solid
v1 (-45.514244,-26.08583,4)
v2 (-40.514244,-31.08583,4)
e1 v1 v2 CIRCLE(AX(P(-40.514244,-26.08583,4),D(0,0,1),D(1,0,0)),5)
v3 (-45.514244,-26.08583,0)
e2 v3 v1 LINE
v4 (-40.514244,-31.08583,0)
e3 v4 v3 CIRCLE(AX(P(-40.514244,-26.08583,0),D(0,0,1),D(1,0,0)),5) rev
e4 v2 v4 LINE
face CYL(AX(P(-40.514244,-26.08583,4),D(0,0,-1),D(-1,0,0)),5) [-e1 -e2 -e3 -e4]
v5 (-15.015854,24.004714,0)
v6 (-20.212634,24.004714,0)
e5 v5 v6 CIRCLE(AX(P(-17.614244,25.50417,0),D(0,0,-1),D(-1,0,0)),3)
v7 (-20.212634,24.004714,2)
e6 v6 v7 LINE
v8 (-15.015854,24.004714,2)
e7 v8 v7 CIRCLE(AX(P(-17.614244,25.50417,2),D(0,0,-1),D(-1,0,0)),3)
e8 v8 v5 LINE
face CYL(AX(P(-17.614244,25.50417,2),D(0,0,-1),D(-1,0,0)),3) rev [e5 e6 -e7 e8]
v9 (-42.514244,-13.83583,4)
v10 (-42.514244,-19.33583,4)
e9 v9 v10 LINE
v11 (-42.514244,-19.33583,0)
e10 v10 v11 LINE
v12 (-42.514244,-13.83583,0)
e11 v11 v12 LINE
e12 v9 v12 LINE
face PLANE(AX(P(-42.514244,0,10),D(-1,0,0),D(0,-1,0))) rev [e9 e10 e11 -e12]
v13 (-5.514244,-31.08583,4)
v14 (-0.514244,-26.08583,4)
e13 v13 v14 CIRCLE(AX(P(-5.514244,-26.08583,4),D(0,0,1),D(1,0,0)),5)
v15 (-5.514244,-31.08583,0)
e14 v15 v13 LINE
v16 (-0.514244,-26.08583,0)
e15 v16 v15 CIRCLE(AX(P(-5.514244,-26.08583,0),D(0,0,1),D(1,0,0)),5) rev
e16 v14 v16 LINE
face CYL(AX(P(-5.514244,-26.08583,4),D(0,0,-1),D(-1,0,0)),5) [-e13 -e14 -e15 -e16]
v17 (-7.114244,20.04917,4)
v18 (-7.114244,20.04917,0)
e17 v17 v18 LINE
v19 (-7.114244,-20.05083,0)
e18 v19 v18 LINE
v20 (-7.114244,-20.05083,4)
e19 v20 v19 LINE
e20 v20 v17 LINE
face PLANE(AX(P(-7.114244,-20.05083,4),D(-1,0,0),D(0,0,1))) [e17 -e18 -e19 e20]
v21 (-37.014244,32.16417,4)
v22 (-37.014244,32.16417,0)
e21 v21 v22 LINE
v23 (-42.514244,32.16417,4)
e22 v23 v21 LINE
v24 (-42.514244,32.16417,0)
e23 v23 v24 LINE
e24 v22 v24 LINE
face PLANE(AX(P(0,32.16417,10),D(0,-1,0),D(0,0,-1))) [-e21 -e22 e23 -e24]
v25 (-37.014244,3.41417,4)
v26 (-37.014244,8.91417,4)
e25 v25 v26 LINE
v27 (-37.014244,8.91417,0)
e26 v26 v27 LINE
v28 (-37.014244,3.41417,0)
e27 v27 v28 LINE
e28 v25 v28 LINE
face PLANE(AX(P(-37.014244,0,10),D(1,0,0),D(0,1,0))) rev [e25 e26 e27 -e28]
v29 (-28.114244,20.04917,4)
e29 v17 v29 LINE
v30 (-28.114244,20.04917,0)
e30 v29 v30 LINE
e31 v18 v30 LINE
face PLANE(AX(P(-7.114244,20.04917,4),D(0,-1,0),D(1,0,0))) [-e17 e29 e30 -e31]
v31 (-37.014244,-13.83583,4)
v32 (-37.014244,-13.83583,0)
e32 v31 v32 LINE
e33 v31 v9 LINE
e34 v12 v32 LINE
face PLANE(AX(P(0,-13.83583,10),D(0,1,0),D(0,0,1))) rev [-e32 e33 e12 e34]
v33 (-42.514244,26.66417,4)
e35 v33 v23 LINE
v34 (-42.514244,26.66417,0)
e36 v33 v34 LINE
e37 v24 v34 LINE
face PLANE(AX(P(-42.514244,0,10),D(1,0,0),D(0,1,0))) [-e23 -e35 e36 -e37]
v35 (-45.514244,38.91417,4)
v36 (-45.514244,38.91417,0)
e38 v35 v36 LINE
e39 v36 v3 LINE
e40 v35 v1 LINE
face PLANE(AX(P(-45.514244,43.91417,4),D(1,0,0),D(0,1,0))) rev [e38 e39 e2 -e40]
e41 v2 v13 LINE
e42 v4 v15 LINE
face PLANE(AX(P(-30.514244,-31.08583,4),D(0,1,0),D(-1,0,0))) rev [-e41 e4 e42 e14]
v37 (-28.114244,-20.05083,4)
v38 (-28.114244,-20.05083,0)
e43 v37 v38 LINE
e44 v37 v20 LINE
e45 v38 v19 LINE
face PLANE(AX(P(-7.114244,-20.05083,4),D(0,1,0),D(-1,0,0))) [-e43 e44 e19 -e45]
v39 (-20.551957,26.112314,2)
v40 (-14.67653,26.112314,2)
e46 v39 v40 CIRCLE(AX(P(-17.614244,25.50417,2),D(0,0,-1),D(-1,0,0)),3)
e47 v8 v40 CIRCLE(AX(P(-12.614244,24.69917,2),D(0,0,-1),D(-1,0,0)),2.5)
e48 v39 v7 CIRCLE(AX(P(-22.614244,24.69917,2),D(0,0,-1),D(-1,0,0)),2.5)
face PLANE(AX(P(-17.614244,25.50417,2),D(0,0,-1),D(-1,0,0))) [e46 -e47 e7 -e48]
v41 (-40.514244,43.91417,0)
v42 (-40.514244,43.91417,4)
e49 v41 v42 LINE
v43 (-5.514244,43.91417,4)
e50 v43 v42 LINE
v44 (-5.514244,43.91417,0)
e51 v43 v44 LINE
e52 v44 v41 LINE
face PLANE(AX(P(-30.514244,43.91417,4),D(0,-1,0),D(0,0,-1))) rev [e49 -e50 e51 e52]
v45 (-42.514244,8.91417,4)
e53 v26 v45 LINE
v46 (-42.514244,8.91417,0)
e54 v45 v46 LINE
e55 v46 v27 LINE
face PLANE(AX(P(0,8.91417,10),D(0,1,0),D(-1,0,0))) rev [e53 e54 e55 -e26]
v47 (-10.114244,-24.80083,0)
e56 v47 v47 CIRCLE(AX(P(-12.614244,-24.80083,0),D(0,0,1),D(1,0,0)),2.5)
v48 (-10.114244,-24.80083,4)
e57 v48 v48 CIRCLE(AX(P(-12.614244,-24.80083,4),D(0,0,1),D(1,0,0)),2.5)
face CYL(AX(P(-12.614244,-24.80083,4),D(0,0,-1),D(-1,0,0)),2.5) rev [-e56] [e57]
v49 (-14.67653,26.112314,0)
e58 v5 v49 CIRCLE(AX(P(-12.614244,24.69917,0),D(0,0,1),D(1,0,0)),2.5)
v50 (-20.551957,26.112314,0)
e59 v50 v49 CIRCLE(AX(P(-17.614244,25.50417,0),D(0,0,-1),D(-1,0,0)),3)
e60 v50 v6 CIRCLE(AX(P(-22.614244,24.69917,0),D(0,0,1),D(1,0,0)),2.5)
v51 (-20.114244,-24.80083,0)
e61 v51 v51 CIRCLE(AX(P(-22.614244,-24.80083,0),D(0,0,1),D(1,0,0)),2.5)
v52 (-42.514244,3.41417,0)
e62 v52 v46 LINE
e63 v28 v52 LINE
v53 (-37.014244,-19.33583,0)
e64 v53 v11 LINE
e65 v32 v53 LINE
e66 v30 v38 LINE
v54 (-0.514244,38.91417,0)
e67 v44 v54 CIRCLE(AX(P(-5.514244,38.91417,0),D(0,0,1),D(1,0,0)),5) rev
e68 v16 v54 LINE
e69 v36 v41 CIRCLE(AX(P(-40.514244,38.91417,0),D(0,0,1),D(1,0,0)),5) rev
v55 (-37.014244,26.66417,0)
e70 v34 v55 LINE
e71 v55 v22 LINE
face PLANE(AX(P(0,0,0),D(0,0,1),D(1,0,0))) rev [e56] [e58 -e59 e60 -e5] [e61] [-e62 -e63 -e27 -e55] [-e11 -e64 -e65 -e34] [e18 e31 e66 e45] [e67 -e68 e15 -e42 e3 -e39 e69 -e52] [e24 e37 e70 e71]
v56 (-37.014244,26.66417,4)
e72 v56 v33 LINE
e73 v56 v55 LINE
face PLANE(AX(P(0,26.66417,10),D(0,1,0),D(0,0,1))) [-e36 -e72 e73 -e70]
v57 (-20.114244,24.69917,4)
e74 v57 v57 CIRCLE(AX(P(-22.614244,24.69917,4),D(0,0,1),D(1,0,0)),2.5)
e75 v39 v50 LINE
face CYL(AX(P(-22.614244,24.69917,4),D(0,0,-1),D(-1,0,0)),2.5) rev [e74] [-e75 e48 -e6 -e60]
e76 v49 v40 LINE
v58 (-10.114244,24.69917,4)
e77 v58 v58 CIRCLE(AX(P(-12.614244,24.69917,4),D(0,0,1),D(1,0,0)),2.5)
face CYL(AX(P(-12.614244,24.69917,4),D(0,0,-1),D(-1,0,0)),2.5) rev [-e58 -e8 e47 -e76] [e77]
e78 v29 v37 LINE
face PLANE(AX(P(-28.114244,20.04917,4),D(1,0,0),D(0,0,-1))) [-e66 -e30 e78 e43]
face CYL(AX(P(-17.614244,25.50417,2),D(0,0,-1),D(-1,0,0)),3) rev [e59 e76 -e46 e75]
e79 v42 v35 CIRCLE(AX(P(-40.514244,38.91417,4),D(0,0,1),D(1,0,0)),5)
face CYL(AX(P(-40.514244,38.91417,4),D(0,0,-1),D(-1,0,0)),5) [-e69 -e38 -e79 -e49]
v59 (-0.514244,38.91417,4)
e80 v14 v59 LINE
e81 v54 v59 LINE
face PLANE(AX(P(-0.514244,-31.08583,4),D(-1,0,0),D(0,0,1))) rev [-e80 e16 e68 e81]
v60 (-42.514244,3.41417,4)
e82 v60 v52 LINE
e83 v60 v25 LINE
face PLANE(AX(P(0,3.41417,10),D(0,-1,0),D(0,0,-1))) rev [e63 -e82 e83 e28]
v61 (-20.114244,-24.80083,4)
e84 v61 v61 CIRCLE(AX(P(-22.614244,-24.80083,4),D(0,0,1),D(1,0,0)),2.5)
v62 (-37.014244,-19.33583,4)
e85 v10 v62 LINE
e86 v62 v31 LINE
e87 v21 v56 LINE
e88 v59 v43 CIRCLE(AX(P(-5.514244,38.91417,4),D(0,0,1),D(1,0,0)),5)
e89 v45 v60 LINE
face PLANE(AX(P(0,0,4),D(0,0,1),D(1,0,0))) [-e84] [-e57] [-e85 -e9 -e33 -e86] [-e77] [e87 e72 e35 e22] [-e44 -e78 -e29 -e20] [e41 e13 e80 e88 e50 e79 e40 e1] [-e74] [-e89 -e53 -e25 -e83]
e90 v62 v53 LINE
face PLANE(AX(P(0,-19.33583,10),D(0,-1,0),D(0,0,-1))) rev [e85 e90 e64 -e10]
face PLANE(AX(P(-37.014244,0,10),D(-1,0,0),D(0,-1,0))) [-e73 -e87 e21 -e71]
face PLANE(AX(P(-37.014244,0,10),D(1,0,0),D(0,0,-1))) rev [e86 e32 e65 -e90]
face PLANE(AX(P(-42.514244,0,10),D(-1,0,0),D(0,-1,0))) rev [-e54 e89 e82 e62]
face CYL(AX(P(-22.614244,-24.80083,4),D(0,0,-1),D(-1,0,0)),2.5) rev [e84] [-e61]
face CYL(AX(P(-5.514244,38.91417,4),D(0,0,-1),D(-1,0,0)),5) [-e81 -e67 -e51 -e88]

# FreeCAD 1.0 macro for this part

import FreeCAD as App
import Part
import Sketcher


def edges_at(feature, points):
    """Names of the edges that pass closest to the given points."""
    edges = feature.Shape.Edges
    near = lambda p: min(range(len(edges)), key=lambda i: edges[i].distToShape(Part.Vertex(*p))[0])
    return sorted({f"Edge{near(p) + 1}" for p in points})


def add_polygon(sketch, points):
    """Adds a closed chain of lines whose ends are joined by coincident constraints."""
    first, n = sketch.GeometryCount, len(points)
    for a, b in zip(points, points[1:] + points[:1]):
        sketch.addGeometry(Part.LineSegment(App.Vector(*a, 0), App.Vector(*b, 0)), False)
    for i in range(n):
        sketch.addConstraint(Sketcher.Constraint("Coincident", first + i, 2, first + (i + 1) % n, 1))

doc = App.newDocument("Part")
params = doc.addObject("Spreadsheet::Sheet", "Params")
for row, (alias, value) in enumerate([
    ("sketch1_diameter", "5 mm"),
    ("sketch1_width", "45 mm"),
    ("sketch1_width2", "21 mm"),
    ("sketch1_height", "75 mm"),
    ("sketch1_height2", "40.1 mm"),
    ("pad1_length", "4 mm"),
    ("sketch2_width", "5.5 mm"),
    ("pocket1_length", "10 mm"),
    ("fillet_radius", "5 mm"),
    ("sketch3_diameter", "6 mm"),
    ("pocket2_length", "2 mm"),
], start=1):
    params.set(f"A{row}", alias)
    params.set(f"B{row}", "=" + value)
    params.setAlias(f"B{row}", alias)

body = doc.addObject("PartDesign::Body", "Body")

# Sketch on XY plane
sketch1 = doc.addObject("Sketcher::SketchObject", "Sketch")
body.addObject(sketch1)
sketch1.AttachmentSupport = (doc.XY_Plane, [""])
sketch1.MapMode = "FlatFace"
add_polygon(sketch1, [(-0.514244, -31.08583), (-0.514244, 43.91417), (-45.514244, 43.91417), (-45.514244, -31.08583)])  # lines 0-3
sketch1.addGeometry(Part.Circle(App.Vector(-22.614244, -24.80083, 0), App.Vector(0, 0, 1), 2.5), False)  # 4
sketch1.addGeometry(Part.Circle(App.Vector(-12.614244, -24.80083, 0), App.Vector(0, 0, 1), 2.5), False)  # 5
sketch1.addGeometry(Part.Circle(App.Vector(-22.614244, 24.69917, 0), App.Vector(0, 0, 1), 2.5), False)  # 6
add_polygon(sketch1, [(-7.114244, -20.05083), (-28.114244, -20.05083), (-28.114244, 20.04917), (-7.114244, 20.04917)])  # lines 7-10
sketch1.addGeometry(Part.Circle(App.Vector(-12.614244, 24.69917, 0), App.Vector(0, 0, 1), 2.5), False)  # 11
sketch1.addConstraint(Sketcher.Constraint("Vertical", 0))
sketch1.addConstraint(Sketcher.Constraint("Horizontal", 1))
sketch1.addConstraint(Sketcher.Constraint("Vertical", 2))
sketch1.addConstraint(Sketcher.Constraint("Horizontal", 3))
sketch1.addConstraint(Sketcher.Constraint("Horizontal", 7))
sketch1.addConstraint(Sketcher.Constraint("Vertical", 8))
sketch1.addConstraint(Sketcher.Constraint("Horizontal", 9))
sketch1.addConstraint(Sketcher.Constraint("Vertical", 10))
sketch1.addConstraint(Sketcher.Constraint("Equal", 4, 5))
sketch1.addConstraint(Sketcher.Constraint("Equal", 5, 6))
sketch1.addConstraint(Sketcher.Constraint("Equal", 6, 11))
sketch1.addConstraint(Sketcher.Constraint("Horizontal", 4, 3, 5, 3))
sketch1.addConstraint(Sketcher.Constraint("Horizontal", 6, 3, 11, 3))
sketch1.addConstraint(Sketcher.Constraint("Vertical", 4, 3, 6, 3))
sketch1.addConstraint(Sketcher.Constraint("Vertical", 5, 3, 11, 3))
sketch1.addConstraint(Sketcher.Constraint("Diameter", 4, 5.0))
sketch1.addConstraint(Sketcher.Constraint("DistanceX", 1, 2, 1, 1, 45.0))
sketch1.addConstraint(Sketcher.Constraint("DistanceX", 7, 2, 7, 1, 21.0))
sketch1.addConstraint(Sketcher.Constraint("DistanceY", 0, 1, 0, 2, 75.0))
sketch1.addConstraint(Sketcher.Constraint("DistanceY", 8, 1, 8, 2, 40.1))
sketch1.addConstraint(Sketcher.Constraint("DistanceX", 4, 3, 5, 3, 10.0))
sketch1.addConstraint(Sketcher.Constraint("DistanceY", 4, 3, 6, 3, 49.5))
sketch1.addConstraint(Sketcher.Constraint("DistanceX", 11, 3, 0, 2, 12.1))
sketch1.addConstraint(Sketcher.Constraint("DistanceX", 7, 2, 4, 3, 5.5))
sketch1.addConstraint(Sketcher.Constraint("DistanceY", 4, 3, 7, 2, 4.75))
sketch1.addConstraint(Sketcher.Constraint("DistanceY", 11, 3, 0, 2, 19.215))
sketch1.addConstraint(Sketcher.Constraint("DistanceY", 4, 3, -1, 1, 24.80083))
sketch1.addConstraint(Sketcher.Constraint("DistanceX", 4, 3, -1, 1, 22.614244))
sketch1.setExpression("Constraints[23]", "Params.sketch1_diameter")
sketch1.setExpression("Constraints[24]", "Params.sketch1_width")
sketch1.setExpression("Constraints[25]", "Params.sketch1_width2")
sketch1.setExpression("Constraints[26]", "Params.sketch1_height")
sketch1.setExpression("Constraints[27]", "Params.sketch1_height2")
pad1 = doc.addObject("PartDesign::Pad", "Pad")
body.addObject(pad1)
pad1.Profile = sketch1
pad1.setExpression("Length", "Params.pad1_length")

# Sketch on XY plane
sketch2 = doc.addObject("Sketcher::SketchObject", "Sketch001")
body.addObject(sketch2)
sketch2.AttachmentSupport = (doc.XY_Plane, [""])
sketch2.MapMode = "FlatFace"
add_polygon(sketch2, [(-42.514244, 3.41417), (-42.514244, 8.91417), (-37.014244, 8.91417), (-37.014244, 3.41417)])  # lines 0-3
add_polygon(sketch2, [(-37.014244, 32.16417), (-37.014244, 26.66417), (-42.514244, 26.66417), (-42.514244, 32.16417)])  # lines 4-7
add_polygon(sketch2, [(-37.014244, -13.83583), (-37.014244, -19.33583), (-42.514244, -19.33583), (-42.514244, -13.83583)])  # lines 8-11
sketch2.addConstraint(Sketcher.Constraint("Vertical", 0))
sketch2.addConstraint(Sketcher.Constraint("Horizontal", 1))
sketch2.addConstraint(Sketcher.Constraint("Vertical", 2))
sketch2.addConstraint(Sketcher.Constraint("Horizontal", 3))
sketch2.addConstraint(Sketcher.Constraint("Vertical", 4))
sketch2.addConstraint(Sketcher.Constraint("Horizontal", 5))
sketch2.addConstraint(Sketcher.Constraint("Vertical", 6))
sketch2.addConstraint(Sketcher.Constraint("Horizontal", 7))
sketch2.addConstraint(Sketcher.Constraint("Vertical", 8))
sketch2.addConstraint(Sketcher.Constraint("Horizontal", 9))
sketch2.addConstraint(Sketcher.Constraint("Vertical", 10))
sketch2.addConstraint(Sketcher.Constraint("Horizontal", 11))
sketch2.addConstraint(Sketcher.Constraint("Vertical", 2, 2, 4, 2))
sketch2.addConstraint(Sketcher.Constraint("Vertical", 3, 2, 5, 2))
sketch2.addConstraint(Sketcher.Constraint("Vertical", 7, 2, 8, 2))
sketch2.addConstraint(Sketcher.Constraint("Vertical", 6, 2, 9, 2))
sketch2.addConstraint(Sketcher.Constraint("Equal", 11, 0))
sketch2.addConstraint(Sketcher.Constraint("Equal", 2, 4))
sketch2.addConstraint(Sketcher.Constraint("Equal", 6, 8))
sketch2.addConstraint(Sketcher.Constraint("DistanceX", 1, 1, 1, 2, 5.5))
sketch2.addConstraint(Sketcher.Constraint("DistanceY", 8, 2, 4, 2, 46.0))
sketch2.addConstraint(Sketcher.Constraint("DistanceY", 1, 2, 4, 2, 17.75))
sketch2.addConstraint(Sketcher.Constraint("DistanceY", -1, 1, 0, 2, 8.91417))
sketch2.addConstraint(Sketcher.Constraint("DistanceX", 0, 2, -1, 1, 42.514244))
sketch2.setExpression("Constraints[31]", "Params.sketch2_width")
pocket1 = doc.addObject("PartDesign::Pocket", "Pocket")
body.addObject(pocket1)
pocket1.Profile = sketch2
pocket1.setExpression("Length", "Params.pocket1_length")
pocket1.Reversed = True
doc.recompute()

fillet = doc.addObject("PartDesign::Fillet", "Fillet")
body.addObject(fillet)
fillet.Base = (pocket1, edges_at(pocket1, [
    (-45.514, -31.086, 2),
    (-45.514, 43.914, 2),
    (-0.514, 43.914, 2),
    (-0.514, -31.086, 2),
]))
fillet.setExpression("Radius", "Params.fillet_radius")

# Sketch on XY plane
sketch3 = doc.addObject("Sketcher::SketchObject", "Sketch002")
body.addObject(sketch3)
sketch3.AttachmentSupport = (doc.XY_Plane, [""])
sketch3.MapMode = "FlatFace"
sketch3.addGeometry(Part.Circle(App.Vector(-17.614244, 25.50417, 0), App.Vector(0, 0, 1), 3), False)
sketch3.addConstraint(Sketcher.Constraint("Diameter", 0, 6.0))
sketch3.addConstraint(Sketcher.Constraint("DistanceY", -1, 1, 0, 3, 25.50417))
sketch3.addConstraint(Sketcher.Constraint("DistanceX", 0, 3, -1, 1, 17.614244))
sketch3.setExpression("Constraints[0]", "Params.sketch3_diameter")
pocket2 = doc.addObject("PartDesign::Pocket", "Pocket001")
body.addObject(pocket2)
pocket2.Profile = sketch3
pocket2.setExpression("Length", "Params.pocket2_length")
pocket2.Reversed = True

doc.recompute()
